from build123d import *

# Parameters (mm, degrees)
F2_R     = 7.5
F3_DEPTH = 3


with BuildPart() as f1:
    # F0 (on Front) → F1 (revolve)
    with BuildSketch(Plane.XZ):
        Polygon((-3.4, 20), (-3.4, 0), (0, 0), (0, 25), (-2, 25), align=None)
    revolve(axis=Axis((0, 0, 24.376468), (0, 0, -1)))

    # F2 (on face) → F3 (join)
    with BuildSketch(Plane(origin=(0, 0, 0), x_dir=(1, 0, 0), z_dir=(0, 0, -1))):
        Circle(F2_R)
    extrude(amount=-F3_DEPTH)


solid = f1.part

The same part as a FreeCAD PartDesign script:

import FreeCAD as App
import Part
import Sketcher

V = App.Vector
Q = App.Units.Quantity

doc = App.newDocument("Part")
body = doc.addObject("PartDesign::Body", "Body")

# Sketch on XZ plane
sketch1 = body.newObject("Sketcher::SketchObject", "Sketch")
sketch1.AttachmentSupport = (doc.getObject("XZ_Plane"), [""])
sketch1.MapMode = "FlatFace"
sketch1.addGeometry([
    Part.LineSegment(V(-3.4, 20, 0), V(-3.4, 0, 0)),  # 0
    Part.LineSegment(V(-3.4, 0, 0), V(0, 0, 0)),  # 1
    Part.LineSegment(V(0, 0, 0), V(0, 25, 0)),  # 2
    Part.LineSegment(V(0, 25, 0), V(-2, 25, 0)),  # 3
    Part.LineSegment(V(-2, 25, 0), V(-3.4, 20, 0)),  # 4
], False)
sketch1.addConstraint([
    Sketcher.Constraint("Coincident", 0, 2, 1, 1),
    Sketcher.Constraint("Coincident", 1, 2, 2, 1),
    Sketcher.Constraint("Coincident", 2, 2, 3, 1),
    Sketcher.Constraint("Coincident", 3, 2, 4, 1),
    Sketcher.Constraint("Coincident", 4, 2, 0, 1),
    Sketcher.Constraint("Vertical", 0),
    Sketcher.Constraint("Horizontal", 1),
    Sketcher.Constraint("Vertical", 2),
    Sketcher.Constraint("Horizontal", 3),
    Sketcher.Constraint("Coincident", 1, 2, -1, 1),
    Sketcher.Constraint("DistanceX", 3, 2, 3, 1, Q("2 mm")),
    Sketcher.Constraint("DistanceY", 0, 2, 0, 1, Q("20 mm")),
    Sketcher.Constraint("DistanceY", 2, 1, 2, 2, Q("25 mm")),
    Sketcher.Constraint("DistanceX", 1, 1, 1, 2, Q("3.4 mm")),
])
revolution = body.newObject("PartDesign::Revolution", "Revolution")
revolution.Profile = sketch1
revolution.ReferenceAxis = (sketch1, ["V_Axis"])
revolution.Angle = 360

# Sketch on XY plane
sketch2 = body.newObject("Sketcher::SketchObject", "Sketch001")
sketch2.AttachmentSupport = (doc.getObject("XY_Plane"), [""])
sketch2.MapMode = "FlatFace"
sketch2.addGeometry(Part.Circle(V(0, 0, 0), V(0, 0, 1), 8), False)
sketch2.addConstraint([
    Sketcher.Constraint("Coincident", 0, 3, -1, 1),
    Sketcher.Constraint("Diameter", 0, Q("15 mm")),
])
pad1 = body.newObject("PartDesign::Pad", "Pad")
pad1.Profile = sketch2
pad1.Length = 3

doc.recompute()
